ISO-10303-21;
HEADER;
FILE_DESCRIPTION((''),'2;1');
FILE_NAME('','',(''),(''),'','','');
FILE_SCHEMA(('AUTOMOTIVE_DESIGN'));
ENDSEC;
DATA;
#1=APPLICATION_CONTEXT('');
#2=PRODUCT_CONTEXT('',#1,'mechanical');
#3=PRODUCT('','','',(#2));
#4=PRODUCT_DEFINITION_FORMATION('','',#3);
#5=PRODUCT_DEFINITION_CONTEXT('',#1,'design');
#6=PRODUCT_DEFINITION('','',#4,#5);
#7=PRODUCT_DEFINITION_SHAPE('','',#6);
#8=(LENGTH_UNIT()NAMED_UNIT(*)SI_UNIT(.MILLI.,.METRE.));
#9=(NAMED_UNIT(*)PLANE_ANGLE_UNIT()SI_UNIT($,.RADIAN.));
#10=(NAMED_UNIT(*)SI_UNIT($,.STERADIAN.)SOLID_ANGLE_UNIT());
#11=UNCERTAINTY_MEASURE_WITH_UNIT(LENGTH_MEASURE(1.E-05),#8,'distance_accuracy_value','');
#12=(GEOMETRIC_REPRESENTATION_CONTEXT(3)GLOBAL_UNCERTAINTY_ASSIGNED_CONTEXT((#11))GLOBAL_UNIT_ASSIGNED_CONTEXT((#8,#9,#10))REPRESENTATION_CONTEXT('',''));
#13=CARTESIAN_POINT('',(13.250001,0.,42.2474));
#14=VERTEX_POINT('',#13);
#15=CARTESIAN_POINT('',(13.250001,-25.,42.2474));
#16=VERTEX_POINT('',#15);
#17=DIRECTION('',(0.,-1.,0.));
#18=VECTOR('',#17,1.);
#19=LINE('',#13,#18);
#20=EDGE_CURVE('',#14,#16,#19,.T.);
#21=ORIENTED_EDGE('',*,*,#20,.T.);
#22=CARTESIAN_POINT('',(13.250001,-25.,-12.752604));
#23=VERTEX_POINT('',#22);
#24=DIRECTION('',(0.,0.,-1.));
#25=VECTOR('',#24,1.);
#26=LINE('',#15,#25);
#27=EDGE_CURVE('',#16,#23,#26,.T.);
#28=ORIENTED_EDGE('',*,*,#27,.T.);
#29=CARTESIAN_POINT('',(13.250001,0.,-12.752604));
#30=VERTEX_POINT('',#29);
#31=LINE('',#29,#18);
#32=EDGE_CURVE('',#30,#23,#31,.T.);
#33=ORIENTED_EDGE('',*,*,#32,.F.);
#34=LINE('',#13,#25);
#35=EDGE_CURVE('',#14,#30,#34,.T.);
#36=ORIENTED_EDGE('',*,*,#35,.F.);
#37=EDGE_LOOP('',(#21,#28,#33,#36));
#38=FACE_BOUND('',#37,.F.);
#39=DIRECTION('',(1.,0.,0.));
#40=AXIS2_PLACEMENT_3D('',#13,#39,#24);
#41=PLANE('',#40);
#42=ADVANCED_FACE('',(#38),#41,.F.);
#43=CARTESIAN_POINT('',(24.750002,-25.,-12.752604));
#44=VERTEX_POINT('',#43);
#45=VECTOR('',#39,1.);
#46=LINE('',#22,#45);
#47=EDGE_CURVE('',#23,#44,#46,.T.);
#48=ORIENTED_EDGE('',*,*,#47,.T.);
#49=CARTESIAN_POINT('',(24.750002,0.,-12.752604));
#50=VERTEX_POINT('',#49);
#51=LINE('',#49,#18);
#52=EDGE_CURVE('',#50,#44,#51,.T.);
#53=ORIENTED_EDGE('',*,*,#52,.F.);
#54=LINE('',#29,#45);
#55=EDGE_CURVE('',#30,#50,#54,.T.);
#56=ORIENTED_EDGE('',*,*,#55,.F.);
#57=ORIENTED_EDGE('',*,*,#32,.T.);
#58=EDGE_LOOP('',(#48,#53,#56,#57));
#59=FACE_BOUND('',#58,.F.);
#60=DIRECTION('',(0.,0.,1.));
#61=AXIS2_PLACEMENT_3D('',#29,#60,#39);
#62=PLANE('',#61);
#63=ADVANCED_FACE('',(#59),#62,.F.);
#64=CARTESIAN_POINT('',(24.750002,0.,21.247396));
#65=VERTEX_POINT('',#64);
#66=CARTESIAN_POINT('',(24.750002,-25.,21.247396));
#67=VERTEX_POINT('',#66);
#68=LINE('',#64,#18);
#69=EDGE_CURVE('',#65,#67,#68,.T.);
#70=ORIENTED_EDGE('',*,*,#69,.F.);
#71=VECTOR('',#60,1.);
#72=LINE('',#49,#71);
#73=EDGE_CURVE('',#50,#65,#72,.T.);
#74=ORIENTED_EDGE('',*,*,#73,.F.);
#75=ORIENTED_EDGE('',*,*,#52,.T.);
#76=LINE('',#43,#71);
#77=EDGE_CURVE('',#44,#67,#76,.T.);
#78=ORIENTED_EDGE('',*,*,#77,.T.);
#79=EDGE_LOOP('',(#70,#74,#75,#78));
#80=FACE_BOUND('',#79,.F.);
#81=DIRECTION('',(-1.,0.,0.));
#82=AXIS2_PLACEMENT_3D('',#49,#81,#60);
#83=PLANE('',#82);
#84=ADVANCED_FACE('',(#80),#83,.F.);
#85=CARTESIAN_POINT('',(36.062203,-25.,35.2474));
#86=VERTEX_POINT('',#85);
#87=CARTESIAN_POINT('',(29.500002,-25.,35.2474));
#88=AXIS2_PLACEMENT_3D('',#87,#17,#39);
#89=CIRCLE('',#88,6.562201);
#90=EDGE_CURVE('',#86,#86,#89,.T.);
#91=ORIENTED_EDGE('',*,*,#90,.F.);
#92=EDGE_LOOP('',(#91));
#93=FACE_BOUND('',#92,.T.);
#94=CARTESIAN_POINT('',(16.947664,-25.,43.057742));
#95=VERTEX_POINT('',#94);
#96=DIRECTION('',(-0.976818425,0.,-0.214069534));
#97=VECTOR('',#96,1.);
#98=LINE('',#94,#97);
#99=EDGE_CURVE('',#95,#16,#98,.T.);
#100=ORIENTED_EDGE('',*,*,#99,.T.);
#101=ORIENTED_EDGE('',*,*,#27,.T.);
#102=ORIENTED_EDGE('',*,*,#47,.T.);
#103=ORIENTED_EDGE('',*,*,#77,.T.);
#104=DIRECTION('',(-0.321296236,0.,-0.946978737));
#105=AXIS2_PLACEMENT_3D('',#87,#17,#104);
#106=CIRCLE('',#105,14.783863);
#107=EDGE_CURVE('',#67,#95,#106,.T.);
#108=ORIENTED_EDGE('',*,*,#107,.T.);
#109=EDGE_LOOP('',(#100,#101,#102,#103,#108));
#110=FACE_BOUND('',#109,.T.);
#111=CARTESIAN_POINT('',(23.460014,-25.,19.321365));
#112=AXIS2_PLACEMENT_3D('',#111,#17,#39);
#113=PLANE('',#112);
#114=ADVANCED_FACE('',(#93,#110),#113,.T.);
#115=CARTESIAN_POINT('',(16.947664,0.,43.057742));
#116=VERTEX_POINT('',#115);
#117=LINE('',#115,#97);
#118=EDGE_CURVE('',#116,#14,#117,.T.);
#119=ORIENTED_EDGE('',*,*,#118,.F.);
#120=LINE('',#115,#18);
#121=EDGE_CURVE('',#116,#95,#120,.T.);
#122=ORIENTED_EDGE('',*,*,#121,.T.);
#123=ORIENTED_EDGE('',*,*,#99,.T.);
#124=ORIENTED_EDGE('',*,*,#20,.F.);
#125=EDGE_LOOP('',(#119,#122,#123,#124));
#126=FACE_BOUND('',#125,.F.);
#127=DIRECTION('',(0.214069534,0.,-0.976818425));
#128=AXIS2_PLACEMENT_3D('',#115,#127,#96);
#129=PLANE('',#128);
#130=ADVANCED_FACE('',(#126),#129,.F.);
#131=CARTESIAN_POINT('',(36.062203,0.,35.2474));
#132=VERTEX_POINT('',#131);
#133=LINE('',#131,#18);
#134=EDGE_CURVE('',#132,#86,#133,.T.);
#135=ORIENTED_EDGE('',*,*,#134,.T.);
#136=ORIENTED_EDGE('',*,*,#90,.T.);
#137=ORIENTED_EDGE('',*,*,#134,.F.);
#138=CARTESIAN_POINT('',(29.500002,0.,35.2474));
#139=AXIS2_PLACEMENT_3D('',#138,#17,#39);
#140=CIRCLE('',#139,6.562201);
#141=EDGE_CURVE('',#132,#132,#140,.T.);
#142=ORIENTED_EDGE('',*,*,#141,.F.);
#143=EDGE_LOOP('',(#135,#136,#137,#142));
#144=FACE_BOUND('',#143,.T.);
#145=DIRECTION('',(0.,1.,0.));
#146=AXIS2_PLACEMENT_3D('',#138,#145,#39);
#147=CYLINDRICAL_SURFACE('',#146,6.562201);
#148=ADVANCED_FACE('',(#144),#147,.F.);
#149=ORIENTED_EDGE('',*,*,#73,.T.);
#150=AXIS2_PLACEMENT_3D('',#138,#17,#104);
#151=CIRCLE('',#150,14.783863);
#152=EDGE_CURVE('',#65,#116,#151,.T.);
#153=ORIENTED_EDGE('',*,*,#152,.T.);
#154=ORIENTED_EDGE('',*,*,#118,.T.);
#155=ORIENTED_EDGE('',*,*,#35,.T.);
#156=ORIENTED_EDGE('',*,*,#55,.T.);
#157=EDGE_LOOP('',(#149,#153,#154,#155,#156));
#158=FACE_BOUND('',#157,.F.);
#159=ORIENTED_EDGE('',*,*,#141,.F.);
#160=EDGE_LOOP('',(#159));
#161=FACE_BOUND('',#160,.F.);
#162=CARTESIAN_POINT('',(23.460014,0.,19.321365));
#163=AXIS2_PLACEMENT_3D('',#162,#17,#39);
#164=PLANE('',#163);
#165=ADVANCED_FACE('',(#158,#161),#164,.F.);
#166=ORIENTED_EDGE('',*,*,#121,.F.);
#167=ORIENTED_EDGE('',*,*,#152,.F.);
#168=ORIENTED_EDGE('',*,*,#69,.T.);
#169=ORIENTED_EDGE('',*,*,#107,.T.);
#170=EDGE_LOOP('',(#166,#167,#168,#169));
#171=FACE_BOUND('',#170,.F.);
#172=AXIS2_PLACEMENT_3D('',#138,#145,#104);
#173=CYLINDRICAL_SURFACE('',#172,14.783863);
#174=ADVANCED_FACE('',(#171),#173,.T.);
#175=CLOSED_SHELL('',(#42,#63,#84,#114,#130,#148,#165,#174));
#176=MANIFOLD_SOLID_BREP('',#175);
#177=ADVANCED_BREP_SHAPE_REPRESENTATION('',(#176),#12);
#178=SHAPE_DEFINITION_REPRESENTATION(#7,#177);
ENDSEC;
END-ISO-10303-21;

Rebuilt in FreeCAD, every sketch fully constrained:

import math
import FreeCAD as App
import Part
import Sketcher

doc = App.newDocument("Part")
body = doc.addObject("PartDesign::Body", "Body")

# Sketch on XZ plane
sketch1 = body.newObject("Sketcher::SketchObject", "Sketch")
sketch1.AttachmentSupport = (doc.getObject("XZ_Plane"), [""])
sketch1.MapMode = "FlatFace"
sketch1.addGeometry([
    Part.LineSegment(App.Vector(16.9, 43.1, 0), App.Vector(13.3, 42.2, 0)),  # 0
    Part.LineSegment(App.Vector(13.3, 42.2, 0), App.Vector(13.3, -12.8, 0)),  # 1
    Part.LineSegment(App.Vector(13.3, -12.8, 0), App.Vector(24.8, -12.8, 0)),  # 2
    Part.LineSegment(App.Vector(24.8, -12.8, 0), App.Vector(24.8, 21.2, 0)),  # 3
    Part.ArcOfCircle(Part.Circle(App.Vector(29.5, 35.2, 0), App.Vector(0, 0, 1), 14.8), math.radians(-109), math.radians(148)),  # 4
    Part.Circle(App.Vector(29.5, 35.2, 0), App.Vector(0, 0, 1), 6.6),  # 5
], False)
sketch1.addConstraint([
    Sketcher.Constraint("Coincident", 0, 2, 1, 1),
    Sketcher.Constraint("Coincident", 1, 2, 2, 1),
    Sketcher.Constraint("Coincident", 2, 2, 3, 1),
    Sketcher.Constraint("Coincident", 3, 2, 4, 1),
    Sketcher.Constraint("Coincident", 4, 2, 0, 1),
    Sketcher.Constraint("Vertical", 1),
    Sketcher.Constraint("Horizontal", 2),
    Sketcher.Constraint("Vertical", 3),
    Sketcher.Constraint("Coincident", 5, 3, 4, 3),
    Sketcher.Constraint("DistanceY", 3, 1, 3, 2, 34.0),
    Sketcher.Constraint("DistanceX", 2, 1, 2, 2, 11.500001),
    Sketcher.Constraint("DistanceY", 4, 3, 0, 2, 7.0),
    Sketcher.Constraint("DistanceX", -1, 1, 4, 3, 29.500002),
    Sketcher.Constraint("DistanceX", -1, 1, 0, 2, 13.250001),
    Sketcher.Constraint("Diameter", 5, 13.124402),
    Sketcher.Constraint("Radius", 4, 14.783863),
    Sketcher.Constraint("DistanceY", -1, 1, 4, 3, 35.2474),
    Sketcher.Constraint("DistanceY", 4, 3, 4, 2, 7.810342),
])
pad1 = body.newObject("PartDesign::Pad", "Pad")
pad1.Profile = sketch1
pad1.Length = 25

doc.recompute()
